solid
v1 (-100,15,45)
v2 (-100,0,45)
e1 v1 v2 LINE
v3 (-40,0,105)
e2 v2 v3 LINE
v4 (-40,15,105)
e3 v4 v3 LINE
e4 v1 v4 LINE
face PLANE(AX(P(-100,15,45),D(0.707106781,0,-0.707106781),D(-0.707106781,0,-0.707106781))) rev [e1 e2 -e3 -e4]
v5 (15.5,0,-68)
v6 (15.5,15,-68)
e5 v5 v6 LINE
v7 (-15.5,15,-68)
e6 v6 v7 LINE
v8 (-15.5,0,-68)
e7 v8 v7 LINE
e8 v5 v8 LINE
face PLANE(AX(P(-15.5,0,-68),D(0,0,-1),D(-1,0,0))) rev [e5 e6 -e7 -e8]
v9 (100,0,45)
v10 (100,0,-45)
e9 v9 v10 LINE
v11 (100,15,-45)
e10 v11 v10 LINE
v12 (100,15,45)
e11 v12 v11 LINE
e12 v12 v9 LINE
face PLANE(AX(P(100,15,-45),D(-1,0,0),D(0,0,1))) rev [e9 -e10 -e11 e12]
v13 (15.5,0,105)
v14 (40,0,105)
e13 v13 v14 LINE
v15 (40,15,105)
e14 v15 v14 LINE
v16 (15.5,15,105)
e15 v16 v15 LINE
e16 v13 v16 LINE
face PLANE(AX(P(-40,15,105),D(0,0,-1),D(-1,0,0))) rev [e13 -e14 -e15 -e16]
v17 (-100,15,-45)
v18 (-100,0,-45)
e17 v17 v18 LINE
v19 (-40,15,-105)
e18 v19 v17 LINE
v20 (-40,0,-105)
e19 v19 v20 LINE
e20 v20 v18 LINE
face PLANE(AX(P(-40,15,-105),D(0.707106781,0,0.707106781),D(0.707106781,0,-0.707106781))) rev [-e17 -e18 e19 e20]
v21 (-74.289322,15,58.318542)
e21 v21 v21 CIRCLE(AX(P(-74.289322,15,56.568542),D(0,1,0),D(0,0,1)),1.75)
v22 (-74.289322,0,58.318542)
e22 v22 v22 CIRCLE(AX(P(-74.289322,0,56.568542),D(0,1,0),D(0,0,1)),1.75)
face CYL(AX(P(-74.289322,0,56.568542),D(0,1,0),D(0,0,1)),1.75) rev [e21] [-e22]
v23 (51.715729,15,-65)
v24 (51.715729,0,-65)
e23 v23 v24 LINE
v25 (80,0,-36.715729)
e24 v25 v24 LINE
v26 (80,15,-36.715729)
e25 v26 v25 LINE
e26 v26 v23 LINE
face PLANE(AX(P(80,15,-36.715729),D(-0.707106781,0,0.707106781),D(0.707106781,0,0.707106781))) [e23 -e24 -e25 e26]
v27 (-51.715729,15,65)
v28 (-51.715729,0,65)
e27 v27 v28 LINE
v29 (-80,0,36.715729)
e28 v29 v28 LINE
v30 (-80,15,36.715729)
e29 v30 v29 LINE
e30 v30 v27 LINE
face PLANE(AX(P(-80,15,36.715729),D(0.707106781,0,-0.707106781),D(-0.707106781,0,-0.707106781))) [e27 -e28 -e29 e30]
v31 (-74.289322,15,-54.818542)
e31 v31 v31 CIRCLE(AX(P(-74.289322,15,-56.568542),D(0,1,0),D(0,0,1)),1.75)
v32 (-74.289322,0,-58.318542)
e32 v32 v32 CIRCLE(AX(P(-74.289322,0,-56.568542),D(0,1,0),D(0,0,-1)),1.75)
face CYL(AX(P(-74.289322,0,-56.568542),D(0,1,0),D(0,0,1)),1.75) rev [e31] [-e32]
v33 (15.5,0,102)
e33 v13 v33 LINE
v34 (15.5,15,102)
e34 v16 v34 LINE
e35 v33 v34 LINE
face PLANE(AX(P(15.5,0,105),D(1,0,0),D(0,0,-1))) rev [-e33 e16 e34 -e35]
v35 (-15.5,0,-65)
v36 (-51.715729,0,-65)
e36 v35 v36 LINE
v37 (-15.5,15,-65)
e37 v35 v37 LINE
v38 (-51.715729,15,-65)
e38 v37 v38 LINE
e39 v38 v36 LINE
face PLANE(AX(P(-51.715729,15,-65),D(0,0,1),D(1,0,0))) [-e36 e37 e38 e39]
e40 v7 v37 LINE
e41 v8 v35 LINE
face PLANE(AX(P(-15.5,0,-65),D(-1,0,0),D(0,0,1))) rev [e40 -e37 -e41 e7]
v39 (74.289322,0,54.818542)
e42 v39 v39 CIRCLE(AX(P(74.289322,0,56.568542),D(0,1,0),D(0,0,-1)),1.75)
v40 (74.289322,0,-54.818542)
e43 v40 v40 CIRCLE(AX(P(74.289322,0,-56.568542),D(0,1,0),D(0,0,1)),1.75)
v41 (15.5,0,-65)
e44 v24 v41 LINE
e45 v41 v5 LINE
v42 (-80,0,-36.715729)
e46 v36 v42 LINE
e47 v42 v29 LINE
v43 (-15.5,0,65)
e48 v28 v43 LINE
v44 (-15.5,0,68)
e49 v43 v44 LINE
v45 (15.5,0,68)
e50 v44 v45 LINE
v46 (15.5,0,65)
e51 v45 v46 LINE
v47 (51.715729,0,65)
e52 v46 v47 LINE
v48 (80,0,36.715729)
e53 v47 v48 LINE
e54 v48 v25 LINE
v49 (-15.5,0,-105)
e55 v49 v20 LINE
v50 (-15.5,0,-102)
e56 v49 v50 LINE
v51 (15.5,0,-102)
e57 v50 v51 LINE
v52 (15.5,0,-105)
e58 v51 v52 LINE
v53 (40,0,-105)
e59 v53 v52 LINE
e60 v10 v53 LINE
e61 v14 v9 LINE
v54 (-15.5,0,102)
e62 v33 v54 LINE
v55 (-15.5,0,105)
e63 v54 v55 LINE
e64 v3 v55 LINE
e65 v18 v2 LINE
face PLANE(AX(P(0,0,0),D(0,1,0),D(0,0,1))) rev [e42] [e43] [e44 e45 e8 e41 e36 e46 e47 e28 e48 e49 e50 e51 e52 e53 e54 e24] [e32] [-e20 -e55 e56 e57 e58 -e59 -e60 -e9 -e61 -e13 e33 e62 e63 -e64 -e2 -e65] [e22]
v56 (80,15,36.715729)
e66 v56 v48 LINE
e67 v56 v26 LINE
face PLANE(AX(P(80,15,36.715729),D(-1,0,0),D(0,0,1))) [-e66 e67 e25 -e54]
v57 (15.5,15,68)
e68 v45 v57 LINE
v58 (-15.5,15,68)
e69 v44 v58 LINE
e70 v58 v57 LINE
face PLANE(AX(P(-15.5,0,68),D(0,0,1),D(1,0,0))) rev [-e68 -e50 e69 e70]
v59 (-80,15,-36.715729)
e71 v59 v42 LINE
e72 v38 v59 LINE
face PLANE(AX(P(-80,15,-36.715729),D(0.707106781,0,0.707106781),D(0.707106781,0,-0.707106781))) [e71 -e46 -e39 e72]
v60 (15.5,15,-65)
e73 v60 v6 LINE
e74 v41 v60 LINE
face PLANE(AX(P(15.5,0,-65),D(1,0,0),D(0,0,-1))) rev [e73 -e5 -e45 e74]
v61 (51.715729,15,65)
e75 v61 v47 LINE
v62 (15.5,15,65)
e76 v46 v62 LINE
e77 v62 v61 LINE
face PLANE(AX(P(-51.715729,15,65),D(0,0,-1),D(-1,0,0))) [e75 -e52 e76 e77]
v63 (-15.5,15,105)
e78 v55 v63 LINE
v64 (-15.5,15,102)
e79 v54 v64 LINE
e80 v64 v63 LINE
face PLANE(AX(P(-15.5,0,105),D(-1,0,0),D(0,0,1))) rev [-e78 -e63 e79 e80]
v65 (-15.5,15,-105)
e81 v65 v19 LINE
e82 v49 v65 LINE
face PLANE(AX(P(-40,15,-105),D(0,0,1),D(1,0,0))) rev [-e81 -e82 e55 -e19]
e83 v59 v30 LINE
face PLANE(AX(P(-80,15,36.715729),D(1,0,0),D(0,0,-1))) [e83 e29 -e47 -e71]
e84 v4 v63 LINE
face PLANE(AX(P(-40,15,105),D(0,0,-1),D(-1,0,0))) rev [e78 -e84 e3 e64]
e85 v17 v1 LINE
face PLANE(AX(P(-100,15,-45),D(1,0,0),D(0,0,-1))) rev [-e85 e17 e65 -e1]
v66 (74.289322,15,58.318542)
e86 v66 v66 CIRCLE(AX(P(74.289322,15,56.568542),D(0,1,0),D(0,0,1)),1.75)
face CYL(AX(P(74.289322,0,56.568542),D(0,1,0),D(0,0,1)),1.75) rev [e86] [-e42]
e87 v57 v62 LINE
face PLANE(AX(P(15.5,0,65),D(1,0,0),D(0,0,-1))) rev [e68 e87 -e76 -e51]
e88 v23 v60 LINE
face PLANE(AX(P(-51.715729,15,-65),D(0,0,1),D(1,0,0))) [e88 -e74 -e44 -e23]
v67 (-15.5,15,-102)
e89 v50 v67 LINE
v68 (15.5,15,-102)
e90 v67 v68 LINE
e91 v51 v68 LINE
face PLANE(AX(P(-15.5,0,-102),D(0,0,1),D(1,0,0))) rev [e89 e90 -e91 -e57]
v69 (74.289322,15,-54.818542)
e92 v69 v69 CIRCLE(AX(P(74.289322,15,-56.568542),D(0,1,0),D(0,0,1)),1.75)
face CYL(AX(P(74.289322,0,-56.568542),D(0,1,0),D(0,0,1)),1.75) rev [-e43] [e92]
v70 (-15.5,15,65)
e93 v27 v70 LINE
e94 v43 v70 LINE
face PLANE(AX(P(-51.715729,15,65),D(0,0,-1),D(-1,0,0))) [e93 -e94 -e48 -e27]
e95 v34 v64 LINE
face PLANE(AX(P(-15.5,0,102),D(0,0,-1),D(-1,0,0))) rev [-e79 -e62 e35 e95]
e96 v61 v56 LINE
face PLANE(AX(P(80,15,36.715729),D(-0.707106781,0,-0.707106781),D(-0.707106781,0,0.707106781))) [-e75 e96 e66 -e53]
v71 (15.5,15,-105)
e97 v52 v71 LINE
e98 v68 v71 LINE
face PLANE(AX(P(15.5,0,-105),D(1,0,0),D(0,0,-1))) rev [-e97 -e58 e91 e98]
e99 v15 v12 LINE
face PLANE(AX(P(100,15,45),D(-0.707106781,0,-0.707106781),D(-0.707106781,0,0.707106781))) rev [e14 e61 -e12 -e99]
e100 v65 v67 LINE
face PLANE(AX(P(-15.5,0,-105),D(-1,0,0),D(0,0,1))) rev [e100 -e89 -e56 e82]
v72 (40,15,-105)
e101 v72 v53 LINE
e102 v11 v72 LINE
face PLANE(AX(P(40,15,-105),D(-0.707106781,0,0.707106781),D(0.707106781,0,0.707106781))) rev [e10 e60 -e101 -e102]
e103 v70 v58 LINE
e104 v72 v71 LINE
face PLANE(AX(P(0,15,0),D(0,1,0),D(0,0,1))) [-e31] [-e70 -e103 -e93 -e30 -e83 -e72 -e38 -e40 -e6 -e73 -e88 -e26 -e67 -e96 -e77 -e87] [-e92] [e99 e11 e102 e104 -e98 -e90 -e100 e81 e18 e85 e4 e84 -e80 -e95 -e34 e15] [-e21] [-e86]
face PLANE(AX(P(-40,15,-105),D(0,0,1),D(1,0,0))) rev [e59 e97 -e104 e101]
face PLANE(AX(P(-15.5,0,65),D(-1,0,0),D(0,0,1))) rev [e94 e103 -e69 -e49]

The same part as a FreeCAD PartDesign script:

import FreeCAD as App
import Part
import Sketcher
Q = App.Units.Quantity

doc = App.newDocument("Part")
body = doc.addObject("PartDesign::Body", "Body")

sketch1 = body.newObject("Sketcher::SketchObject", "Sketch")
sketch1.AttachmentSupport = (doc.getObject("XZ_Plane"), [""])
sketch1.MapMode = "FlatFace"
sketch1.addGeometry([
    Part.LineSegment(App.Vector(100, -45, 0), App.Vector(40, -105, 0)),
    Part.LineSegment(App.Vector(40, -105, 0), App.Vector(-40, -105, 0)),
    Part.LineSegment(App.Vector(-40, -105, 0), App.Vector(-100, -45, 0)),
    Part.LineSegment(App.Vector(-100, -45, 0), App.Vector(-100, 45, 0)),
    Part.LineSegment(App.Vector(-100, 45, 0), App.Vector(-40, 105, 0)),
    Part.LineSegment(App.Vector(-40, 105, 0), App.Vector(40, 105, 0)),
    Part.LineSegment(App.Vector(40, 105, 0), App.Vector(100, 45, 0)),
    Part.LineSegment(App.Vector(100, 45, 0), App.Vector(100, -45, 0)),
    Part.LineSegment(App.Vector(-80, 37, 0), App.Vector(-80, -37, 0)),
    Part.LineSegment(App.Vector(-80, -37, 0), App.Vector(-52, -65, 0)),
    Part.LineSegment(App.Vector(-52, -65, 0), App.Vector(52, -65, 0)),
    Part.LineSegment(App.Vector(52, -65, 0), App.Vector(80, -37, 0)),
    Part.LineSegment(App.Vector(80, -37, 0), App.Vector(80, 37, 0)),
    Part.LineSegment(App.Vector(80, 37, 0), App.Vector(52, 65, 0)),
    Part.LineSegment(App.Vector(52, 65, 0), App.Vector(-52, 65, 0)),
    Part.LineSegment(App.Vector(-52, 65, 0), App.Vector(-80, 37, 0)),
], False)
sketch1.addConstraint([
    Sketcher.Constraint("Coincident", 0, 2, 1, 1),
    Sketcher.Constraint("Coincident", 1, 2, 2, 1),
    Sketcher.Constraint("Coincident", 2, 2, 3, 1),
    Sketcher.Constraint("Coincident", 3, 2, 4, 1),
    Sketcher.Constraint("Coincident", 4, 2, 5, 1),
    Sketcher.Constraint("Coincident", 5, 2, 6, 1),
    Sketcher.Constraint("Coincident", 6, 2, 7, 1),
    Sketcher.Constraint("Coincident", 7, 2, 0, 1),
    Sketcher.Constraint("Coincident", 8, 2, 9, 1),
    Sketcher.Constraint("Coincident", 9, 2, 10, 1),
    Sketcher.Constraint("Coincident", 10, 2, 11, 1),
    Sketcher.Constraint("Coincident", 11, 2, 12, 1),
    Sketcher.Constraint("Coincident", 12, 2, 13, 1),
    Sketcher.Constraint("Coincident", 13, 2, 14, 1),
    Sketcher.Constraint("Coincident", 14, 2, 15, 1),
    Sketcher.Constraint("Coincident", 15, 2, 8, 1),
    Sketcher.Constraint("Horizontal", 1),
    Sketcher.Constraint("Vertical", 3),
    Sketcher.Constraint("Horizontal", 5),
    Sketcher.Constraint("Vertical", 7),
    Sketcher.Constraint("Vertical", 8),
    Sketcher.Constraint("Horizontal", 10),
    Sketcher.Constraint("Vertical", 12),
    Sketcher.Constraint("Horizontal", 14),
    Sketcher.Constraint("Symmetric", 0, 2, 4, 2, -1, 1),
    Sketcher.Constraint("Symmetric", 2, 2, 6, 2, -1, 1),
    Sketcher.Constraint("Symmetric", 8, 2, 12, 2, -1, 1),
    Sketcher.Constraint("Symmetric", 9, 2, 13, 2, -1, 1),
    Sketcher.Constraint("Perpendicular", 0, 2),
    Sketcher.Constraint("Perpendicular", 2, 4),
    Sketcher.Constraint("Perpendicular", 4, 6),
    Sketcher.Constraint("Parallel", 6, 9),
    Sketcher.Constraint("Perpendicular", 9, 11),
    Sketcher.Constraint("Perpendicular", 13, 15),
    Sketcher.Constraint("Horizontal", 3, 2, 6, 2),
    Sketcher.Constraint("Horizontal", 8, 2, 11, 2),
    Sketcher.Constraint("Horizontal", 12, 2, 15, 2),
    Sketcher.Constraint("Vertical", 1, 2, 4, 2),
    Sketcher.Constraint("DistanceX", 1, 2, 1, 1, Q("80 mm")),
    Sketcher.Constraint("DistanceY", 3, 1, 3, 2, Q("90 mm")),
    Sketcher.Constraint("Distance", 9, Q("40 mm")),
    Sketcher.Constraint("DistanceY", 0, 2, -1, 1, Q("105 mm")),
    Sketcher.Constraint("DistanceX", 8, 2, -1, 1, Q("80 mm")),
    Sketcher.Constraint("DistanceY", 9, 2, -1, 1, Q("65 mm")),
])
pad1 = body.newObject("PartDesign::Pad", "Pad")
pad1.Profile = sketch1
pad1.Length = 15
pad1.Reversed = True

sketch2 = body.newObject("Sketcher::SketchObject", "Sketch001")
sketch2.AttachmentSupport = (doc.getObject("XZ_Plane"), [""])
sketch2.MapMode = "FlatFace"
sketch2.AttachmentOffset = App.Placement(App.Vector(0, 0, -15), App.Rotation())
sketch2.addGeometry([
    Part.Circle(App.Vector(-74.3, 56.6, 0), App.Vector(0, 0, 1), 1.8),
    Part.Circle(App.Vector(74.3, -56.6, 0), App.Vector(0, 0, 1), 1.8),
    Part.Circle(App.Vector(-74.3, -56.6, 0), App.Vector(0, 0, 1), 1.8),
    Part.Circle(App.Vector(74.3, 56.6, 0), App.Vector(0, 0, 1), 1.8),
    Part.LineSegment(App.Vector(-15.5, -105, 0), App.Vector(-15.5, -102, 0)),
    Part.LineSegment(App.Vector(-15.5, -102, 0), App.Vector(15.5, -102, 0)),
    Part.LineSegment(App.Vector(15.5, -102, 0), App.Vector(15.5, -105, 0)),
    Part.LineSegment(App.Vector(15.5, -105, 0), App.Vector(-15.5, -105, 0)),
    Part.LineSegment(App.Vector(-15.5, -68, 0), App.Vector(-15.5, -65, 0)),
    Part.LineSegment(App.Vector(-15.5, -65, 0), App.Vector(15.5, -65, 0)),
    Part.LineSegment(App.Vector(15.5, -65, 0), App.Vector(15.5, -68, 0)),
    Part.LineSegment(App.Vector(15.5, -68, 0), App.Vector(-15.5, -68, 0)),
    Part.LineSegment(App.Vector(-15.5, 65, 0), App.Vector(-15.5, 68, 0)),
    Part.LineSegment(App.Vector(-15.5, 68, 0), App.Vector(15.5, 68, 0)),
    Part.LineSegment(App.Vector(15.5, 68, 0), App.Vector(15.5, 65, 0)),
    Part.LineSegment(App.Vector(15.5, 65, 0), App.Vector(-15.5, 65, 0)),
    Part.LineSegment(App.Vector(-15.5, 102, 0), App.Vector(-15.5, 105, 0)),
    Part.LineSegment(App.Vector(-15.5, 105, 0), App.Vector(15.5, 105, 0)),
    Part.LineSegment(App.Vector(15.5, 105, 0), App.Vector(15.5, 102, 0)),
    Part.LineSegment(App.Vector(15.5, 102, 0), App.Vector(-15.5, 102, 0)),
], False)
sketch2.addConstraint([
    Sketcher.Constraint("Coincident", 4, 2, 5, 1),
    Sketcher.Constraint("Coincident", 5, 2, 6, 1),
    Sketcher.Constraint("Coincident", 6, 2, 7, 1),
    Sketcher.Constraint("Coincident", 7, 2, 4, 1),
    Sketcher.Constraint("Coincident", 8, 2, 9, 1),
    Sketcher.Constraint("Coincident", 9, 2, 10, 1),
    Sketcher.Constraint("Coincident", 10, 2, 11, 1),
    Sketcher.Constraint("Coincident", 11, 2, 8, 1),
    Sketcher.Constraint("Coincident", 12, 2, 13, 1),
    Sketcher.Constraint("Coincident", 13, 2, 14, 1),
    Sketcher.Constraint("Coincident", 14, 2, 15, 1),
    Sketcher.Constraint("Coincident", 15, 2, 12, 1),
    Sketcher.Constraint("Coincident", 16, 2, 17, 1),
    Sketcher.Constraint("Coincident", 17, 2, 18, 1),
    Sketcher.Constraint("Coincident", 18, 2, 19, 1),
    Sketcher.Constraint("Coincident", 19, 2, 16, 1),
    Sketcher.Constraint("Vertical", 4),
    Sketcher.Constraint("Horizontal", 5),
    Sketcher.Constraint("Vertical", 6),
    Sketcher.Constraint("Horizontal", 7),
    Sketcher.Constraint("Vertical", 8),
    Sketcher.Constraint("Horizontal", 9),
    Sketcher.Constraint("Vertical", 10),
    Sketcher.Constraint("Horizontal", 11),
    Sketcher.Constraint("Vertical", 12),
    Sketcher.Constraint("Horizontal", 13),
    Sketcher.Constraint("Vertical", 14),
    Sketcher.Constraint("Horizontal", 15),
    Sketcher.Constraint("Vertical", 16),
    Sketcher.Constraint("Horizontal", 17),
    Sketcher.Constraint("Vertical", 18),
    Sketcher.Constraint("Horizontal", 19),
    Sketcher.Constraint("Equal", 0, 1),
    Sketcher.Constraint("Equal", 1, 2),
    Sketcher.Constraint("Equal", 2, 3),
    Sketcher.Constraint("Symmetric", 0, 3, 1, 3, -1, 1),
    Sketcher.Constraint("Symmetric", 2, 3, 3, 3, -1, 1),
    Sketcher.Constraint("Symmetric", 10, 2, 12, 2, -1, 1),
    Sketcher.Constraint("Symmetric", 8, 2, 14, 2, -1, 1),
    Sketcher.Constraint("Symmetric", 6, 2, 16, 2, -1, 1),
    Sketcher.Constraint("Symmetric", 4, 2, 18, 2, -1, 1),
    Sketcher.Constraint("Symmetric", 1, 3, 2, 3, -2),
    Sketcher.Constraint("Vertical", 7, 2, 8, 2),
    Sketcher.Constraint("Vertical", 6, 2, 9, 2),
    Sketcher.Constraint("Vertical", 11, 2, 12, 2),
    Sketcher.Constraint("Equal", 6, 8),
    Sketcher.Constraint("Diameter", 0, Q("3.5 mm")),
    Sketcher.Constraint("DistanceX", 5, 1, 5, 2, Q("31 mm")),
    Sketcher.Constraint("DistanceY", 4, 1, 4, 2, Q("3 mm")),
    Sketcher.Constraint("DistanceY", 4, 2, -1, 1, Q("102 mm")),
    Sketcher.Constraint("DistanceY", 8, 2, -1, 1, Q("65 mm")),
    Sketcher.Constraint("DistanceX", 0, 3, -1, 1, Q("74.289322 mm")),
    Sketcher.Constraint("DistanceY", -1, 1, 0, 3, Q("56.568542 mm")),
])
pocket1 = body.newObject("PartDesign::Pocket", "Pocket")
pocket1.Profile = sketch2
pocket1.Type = "ThroughAll"
pocket1.Midplane = True

doc.recompute()
